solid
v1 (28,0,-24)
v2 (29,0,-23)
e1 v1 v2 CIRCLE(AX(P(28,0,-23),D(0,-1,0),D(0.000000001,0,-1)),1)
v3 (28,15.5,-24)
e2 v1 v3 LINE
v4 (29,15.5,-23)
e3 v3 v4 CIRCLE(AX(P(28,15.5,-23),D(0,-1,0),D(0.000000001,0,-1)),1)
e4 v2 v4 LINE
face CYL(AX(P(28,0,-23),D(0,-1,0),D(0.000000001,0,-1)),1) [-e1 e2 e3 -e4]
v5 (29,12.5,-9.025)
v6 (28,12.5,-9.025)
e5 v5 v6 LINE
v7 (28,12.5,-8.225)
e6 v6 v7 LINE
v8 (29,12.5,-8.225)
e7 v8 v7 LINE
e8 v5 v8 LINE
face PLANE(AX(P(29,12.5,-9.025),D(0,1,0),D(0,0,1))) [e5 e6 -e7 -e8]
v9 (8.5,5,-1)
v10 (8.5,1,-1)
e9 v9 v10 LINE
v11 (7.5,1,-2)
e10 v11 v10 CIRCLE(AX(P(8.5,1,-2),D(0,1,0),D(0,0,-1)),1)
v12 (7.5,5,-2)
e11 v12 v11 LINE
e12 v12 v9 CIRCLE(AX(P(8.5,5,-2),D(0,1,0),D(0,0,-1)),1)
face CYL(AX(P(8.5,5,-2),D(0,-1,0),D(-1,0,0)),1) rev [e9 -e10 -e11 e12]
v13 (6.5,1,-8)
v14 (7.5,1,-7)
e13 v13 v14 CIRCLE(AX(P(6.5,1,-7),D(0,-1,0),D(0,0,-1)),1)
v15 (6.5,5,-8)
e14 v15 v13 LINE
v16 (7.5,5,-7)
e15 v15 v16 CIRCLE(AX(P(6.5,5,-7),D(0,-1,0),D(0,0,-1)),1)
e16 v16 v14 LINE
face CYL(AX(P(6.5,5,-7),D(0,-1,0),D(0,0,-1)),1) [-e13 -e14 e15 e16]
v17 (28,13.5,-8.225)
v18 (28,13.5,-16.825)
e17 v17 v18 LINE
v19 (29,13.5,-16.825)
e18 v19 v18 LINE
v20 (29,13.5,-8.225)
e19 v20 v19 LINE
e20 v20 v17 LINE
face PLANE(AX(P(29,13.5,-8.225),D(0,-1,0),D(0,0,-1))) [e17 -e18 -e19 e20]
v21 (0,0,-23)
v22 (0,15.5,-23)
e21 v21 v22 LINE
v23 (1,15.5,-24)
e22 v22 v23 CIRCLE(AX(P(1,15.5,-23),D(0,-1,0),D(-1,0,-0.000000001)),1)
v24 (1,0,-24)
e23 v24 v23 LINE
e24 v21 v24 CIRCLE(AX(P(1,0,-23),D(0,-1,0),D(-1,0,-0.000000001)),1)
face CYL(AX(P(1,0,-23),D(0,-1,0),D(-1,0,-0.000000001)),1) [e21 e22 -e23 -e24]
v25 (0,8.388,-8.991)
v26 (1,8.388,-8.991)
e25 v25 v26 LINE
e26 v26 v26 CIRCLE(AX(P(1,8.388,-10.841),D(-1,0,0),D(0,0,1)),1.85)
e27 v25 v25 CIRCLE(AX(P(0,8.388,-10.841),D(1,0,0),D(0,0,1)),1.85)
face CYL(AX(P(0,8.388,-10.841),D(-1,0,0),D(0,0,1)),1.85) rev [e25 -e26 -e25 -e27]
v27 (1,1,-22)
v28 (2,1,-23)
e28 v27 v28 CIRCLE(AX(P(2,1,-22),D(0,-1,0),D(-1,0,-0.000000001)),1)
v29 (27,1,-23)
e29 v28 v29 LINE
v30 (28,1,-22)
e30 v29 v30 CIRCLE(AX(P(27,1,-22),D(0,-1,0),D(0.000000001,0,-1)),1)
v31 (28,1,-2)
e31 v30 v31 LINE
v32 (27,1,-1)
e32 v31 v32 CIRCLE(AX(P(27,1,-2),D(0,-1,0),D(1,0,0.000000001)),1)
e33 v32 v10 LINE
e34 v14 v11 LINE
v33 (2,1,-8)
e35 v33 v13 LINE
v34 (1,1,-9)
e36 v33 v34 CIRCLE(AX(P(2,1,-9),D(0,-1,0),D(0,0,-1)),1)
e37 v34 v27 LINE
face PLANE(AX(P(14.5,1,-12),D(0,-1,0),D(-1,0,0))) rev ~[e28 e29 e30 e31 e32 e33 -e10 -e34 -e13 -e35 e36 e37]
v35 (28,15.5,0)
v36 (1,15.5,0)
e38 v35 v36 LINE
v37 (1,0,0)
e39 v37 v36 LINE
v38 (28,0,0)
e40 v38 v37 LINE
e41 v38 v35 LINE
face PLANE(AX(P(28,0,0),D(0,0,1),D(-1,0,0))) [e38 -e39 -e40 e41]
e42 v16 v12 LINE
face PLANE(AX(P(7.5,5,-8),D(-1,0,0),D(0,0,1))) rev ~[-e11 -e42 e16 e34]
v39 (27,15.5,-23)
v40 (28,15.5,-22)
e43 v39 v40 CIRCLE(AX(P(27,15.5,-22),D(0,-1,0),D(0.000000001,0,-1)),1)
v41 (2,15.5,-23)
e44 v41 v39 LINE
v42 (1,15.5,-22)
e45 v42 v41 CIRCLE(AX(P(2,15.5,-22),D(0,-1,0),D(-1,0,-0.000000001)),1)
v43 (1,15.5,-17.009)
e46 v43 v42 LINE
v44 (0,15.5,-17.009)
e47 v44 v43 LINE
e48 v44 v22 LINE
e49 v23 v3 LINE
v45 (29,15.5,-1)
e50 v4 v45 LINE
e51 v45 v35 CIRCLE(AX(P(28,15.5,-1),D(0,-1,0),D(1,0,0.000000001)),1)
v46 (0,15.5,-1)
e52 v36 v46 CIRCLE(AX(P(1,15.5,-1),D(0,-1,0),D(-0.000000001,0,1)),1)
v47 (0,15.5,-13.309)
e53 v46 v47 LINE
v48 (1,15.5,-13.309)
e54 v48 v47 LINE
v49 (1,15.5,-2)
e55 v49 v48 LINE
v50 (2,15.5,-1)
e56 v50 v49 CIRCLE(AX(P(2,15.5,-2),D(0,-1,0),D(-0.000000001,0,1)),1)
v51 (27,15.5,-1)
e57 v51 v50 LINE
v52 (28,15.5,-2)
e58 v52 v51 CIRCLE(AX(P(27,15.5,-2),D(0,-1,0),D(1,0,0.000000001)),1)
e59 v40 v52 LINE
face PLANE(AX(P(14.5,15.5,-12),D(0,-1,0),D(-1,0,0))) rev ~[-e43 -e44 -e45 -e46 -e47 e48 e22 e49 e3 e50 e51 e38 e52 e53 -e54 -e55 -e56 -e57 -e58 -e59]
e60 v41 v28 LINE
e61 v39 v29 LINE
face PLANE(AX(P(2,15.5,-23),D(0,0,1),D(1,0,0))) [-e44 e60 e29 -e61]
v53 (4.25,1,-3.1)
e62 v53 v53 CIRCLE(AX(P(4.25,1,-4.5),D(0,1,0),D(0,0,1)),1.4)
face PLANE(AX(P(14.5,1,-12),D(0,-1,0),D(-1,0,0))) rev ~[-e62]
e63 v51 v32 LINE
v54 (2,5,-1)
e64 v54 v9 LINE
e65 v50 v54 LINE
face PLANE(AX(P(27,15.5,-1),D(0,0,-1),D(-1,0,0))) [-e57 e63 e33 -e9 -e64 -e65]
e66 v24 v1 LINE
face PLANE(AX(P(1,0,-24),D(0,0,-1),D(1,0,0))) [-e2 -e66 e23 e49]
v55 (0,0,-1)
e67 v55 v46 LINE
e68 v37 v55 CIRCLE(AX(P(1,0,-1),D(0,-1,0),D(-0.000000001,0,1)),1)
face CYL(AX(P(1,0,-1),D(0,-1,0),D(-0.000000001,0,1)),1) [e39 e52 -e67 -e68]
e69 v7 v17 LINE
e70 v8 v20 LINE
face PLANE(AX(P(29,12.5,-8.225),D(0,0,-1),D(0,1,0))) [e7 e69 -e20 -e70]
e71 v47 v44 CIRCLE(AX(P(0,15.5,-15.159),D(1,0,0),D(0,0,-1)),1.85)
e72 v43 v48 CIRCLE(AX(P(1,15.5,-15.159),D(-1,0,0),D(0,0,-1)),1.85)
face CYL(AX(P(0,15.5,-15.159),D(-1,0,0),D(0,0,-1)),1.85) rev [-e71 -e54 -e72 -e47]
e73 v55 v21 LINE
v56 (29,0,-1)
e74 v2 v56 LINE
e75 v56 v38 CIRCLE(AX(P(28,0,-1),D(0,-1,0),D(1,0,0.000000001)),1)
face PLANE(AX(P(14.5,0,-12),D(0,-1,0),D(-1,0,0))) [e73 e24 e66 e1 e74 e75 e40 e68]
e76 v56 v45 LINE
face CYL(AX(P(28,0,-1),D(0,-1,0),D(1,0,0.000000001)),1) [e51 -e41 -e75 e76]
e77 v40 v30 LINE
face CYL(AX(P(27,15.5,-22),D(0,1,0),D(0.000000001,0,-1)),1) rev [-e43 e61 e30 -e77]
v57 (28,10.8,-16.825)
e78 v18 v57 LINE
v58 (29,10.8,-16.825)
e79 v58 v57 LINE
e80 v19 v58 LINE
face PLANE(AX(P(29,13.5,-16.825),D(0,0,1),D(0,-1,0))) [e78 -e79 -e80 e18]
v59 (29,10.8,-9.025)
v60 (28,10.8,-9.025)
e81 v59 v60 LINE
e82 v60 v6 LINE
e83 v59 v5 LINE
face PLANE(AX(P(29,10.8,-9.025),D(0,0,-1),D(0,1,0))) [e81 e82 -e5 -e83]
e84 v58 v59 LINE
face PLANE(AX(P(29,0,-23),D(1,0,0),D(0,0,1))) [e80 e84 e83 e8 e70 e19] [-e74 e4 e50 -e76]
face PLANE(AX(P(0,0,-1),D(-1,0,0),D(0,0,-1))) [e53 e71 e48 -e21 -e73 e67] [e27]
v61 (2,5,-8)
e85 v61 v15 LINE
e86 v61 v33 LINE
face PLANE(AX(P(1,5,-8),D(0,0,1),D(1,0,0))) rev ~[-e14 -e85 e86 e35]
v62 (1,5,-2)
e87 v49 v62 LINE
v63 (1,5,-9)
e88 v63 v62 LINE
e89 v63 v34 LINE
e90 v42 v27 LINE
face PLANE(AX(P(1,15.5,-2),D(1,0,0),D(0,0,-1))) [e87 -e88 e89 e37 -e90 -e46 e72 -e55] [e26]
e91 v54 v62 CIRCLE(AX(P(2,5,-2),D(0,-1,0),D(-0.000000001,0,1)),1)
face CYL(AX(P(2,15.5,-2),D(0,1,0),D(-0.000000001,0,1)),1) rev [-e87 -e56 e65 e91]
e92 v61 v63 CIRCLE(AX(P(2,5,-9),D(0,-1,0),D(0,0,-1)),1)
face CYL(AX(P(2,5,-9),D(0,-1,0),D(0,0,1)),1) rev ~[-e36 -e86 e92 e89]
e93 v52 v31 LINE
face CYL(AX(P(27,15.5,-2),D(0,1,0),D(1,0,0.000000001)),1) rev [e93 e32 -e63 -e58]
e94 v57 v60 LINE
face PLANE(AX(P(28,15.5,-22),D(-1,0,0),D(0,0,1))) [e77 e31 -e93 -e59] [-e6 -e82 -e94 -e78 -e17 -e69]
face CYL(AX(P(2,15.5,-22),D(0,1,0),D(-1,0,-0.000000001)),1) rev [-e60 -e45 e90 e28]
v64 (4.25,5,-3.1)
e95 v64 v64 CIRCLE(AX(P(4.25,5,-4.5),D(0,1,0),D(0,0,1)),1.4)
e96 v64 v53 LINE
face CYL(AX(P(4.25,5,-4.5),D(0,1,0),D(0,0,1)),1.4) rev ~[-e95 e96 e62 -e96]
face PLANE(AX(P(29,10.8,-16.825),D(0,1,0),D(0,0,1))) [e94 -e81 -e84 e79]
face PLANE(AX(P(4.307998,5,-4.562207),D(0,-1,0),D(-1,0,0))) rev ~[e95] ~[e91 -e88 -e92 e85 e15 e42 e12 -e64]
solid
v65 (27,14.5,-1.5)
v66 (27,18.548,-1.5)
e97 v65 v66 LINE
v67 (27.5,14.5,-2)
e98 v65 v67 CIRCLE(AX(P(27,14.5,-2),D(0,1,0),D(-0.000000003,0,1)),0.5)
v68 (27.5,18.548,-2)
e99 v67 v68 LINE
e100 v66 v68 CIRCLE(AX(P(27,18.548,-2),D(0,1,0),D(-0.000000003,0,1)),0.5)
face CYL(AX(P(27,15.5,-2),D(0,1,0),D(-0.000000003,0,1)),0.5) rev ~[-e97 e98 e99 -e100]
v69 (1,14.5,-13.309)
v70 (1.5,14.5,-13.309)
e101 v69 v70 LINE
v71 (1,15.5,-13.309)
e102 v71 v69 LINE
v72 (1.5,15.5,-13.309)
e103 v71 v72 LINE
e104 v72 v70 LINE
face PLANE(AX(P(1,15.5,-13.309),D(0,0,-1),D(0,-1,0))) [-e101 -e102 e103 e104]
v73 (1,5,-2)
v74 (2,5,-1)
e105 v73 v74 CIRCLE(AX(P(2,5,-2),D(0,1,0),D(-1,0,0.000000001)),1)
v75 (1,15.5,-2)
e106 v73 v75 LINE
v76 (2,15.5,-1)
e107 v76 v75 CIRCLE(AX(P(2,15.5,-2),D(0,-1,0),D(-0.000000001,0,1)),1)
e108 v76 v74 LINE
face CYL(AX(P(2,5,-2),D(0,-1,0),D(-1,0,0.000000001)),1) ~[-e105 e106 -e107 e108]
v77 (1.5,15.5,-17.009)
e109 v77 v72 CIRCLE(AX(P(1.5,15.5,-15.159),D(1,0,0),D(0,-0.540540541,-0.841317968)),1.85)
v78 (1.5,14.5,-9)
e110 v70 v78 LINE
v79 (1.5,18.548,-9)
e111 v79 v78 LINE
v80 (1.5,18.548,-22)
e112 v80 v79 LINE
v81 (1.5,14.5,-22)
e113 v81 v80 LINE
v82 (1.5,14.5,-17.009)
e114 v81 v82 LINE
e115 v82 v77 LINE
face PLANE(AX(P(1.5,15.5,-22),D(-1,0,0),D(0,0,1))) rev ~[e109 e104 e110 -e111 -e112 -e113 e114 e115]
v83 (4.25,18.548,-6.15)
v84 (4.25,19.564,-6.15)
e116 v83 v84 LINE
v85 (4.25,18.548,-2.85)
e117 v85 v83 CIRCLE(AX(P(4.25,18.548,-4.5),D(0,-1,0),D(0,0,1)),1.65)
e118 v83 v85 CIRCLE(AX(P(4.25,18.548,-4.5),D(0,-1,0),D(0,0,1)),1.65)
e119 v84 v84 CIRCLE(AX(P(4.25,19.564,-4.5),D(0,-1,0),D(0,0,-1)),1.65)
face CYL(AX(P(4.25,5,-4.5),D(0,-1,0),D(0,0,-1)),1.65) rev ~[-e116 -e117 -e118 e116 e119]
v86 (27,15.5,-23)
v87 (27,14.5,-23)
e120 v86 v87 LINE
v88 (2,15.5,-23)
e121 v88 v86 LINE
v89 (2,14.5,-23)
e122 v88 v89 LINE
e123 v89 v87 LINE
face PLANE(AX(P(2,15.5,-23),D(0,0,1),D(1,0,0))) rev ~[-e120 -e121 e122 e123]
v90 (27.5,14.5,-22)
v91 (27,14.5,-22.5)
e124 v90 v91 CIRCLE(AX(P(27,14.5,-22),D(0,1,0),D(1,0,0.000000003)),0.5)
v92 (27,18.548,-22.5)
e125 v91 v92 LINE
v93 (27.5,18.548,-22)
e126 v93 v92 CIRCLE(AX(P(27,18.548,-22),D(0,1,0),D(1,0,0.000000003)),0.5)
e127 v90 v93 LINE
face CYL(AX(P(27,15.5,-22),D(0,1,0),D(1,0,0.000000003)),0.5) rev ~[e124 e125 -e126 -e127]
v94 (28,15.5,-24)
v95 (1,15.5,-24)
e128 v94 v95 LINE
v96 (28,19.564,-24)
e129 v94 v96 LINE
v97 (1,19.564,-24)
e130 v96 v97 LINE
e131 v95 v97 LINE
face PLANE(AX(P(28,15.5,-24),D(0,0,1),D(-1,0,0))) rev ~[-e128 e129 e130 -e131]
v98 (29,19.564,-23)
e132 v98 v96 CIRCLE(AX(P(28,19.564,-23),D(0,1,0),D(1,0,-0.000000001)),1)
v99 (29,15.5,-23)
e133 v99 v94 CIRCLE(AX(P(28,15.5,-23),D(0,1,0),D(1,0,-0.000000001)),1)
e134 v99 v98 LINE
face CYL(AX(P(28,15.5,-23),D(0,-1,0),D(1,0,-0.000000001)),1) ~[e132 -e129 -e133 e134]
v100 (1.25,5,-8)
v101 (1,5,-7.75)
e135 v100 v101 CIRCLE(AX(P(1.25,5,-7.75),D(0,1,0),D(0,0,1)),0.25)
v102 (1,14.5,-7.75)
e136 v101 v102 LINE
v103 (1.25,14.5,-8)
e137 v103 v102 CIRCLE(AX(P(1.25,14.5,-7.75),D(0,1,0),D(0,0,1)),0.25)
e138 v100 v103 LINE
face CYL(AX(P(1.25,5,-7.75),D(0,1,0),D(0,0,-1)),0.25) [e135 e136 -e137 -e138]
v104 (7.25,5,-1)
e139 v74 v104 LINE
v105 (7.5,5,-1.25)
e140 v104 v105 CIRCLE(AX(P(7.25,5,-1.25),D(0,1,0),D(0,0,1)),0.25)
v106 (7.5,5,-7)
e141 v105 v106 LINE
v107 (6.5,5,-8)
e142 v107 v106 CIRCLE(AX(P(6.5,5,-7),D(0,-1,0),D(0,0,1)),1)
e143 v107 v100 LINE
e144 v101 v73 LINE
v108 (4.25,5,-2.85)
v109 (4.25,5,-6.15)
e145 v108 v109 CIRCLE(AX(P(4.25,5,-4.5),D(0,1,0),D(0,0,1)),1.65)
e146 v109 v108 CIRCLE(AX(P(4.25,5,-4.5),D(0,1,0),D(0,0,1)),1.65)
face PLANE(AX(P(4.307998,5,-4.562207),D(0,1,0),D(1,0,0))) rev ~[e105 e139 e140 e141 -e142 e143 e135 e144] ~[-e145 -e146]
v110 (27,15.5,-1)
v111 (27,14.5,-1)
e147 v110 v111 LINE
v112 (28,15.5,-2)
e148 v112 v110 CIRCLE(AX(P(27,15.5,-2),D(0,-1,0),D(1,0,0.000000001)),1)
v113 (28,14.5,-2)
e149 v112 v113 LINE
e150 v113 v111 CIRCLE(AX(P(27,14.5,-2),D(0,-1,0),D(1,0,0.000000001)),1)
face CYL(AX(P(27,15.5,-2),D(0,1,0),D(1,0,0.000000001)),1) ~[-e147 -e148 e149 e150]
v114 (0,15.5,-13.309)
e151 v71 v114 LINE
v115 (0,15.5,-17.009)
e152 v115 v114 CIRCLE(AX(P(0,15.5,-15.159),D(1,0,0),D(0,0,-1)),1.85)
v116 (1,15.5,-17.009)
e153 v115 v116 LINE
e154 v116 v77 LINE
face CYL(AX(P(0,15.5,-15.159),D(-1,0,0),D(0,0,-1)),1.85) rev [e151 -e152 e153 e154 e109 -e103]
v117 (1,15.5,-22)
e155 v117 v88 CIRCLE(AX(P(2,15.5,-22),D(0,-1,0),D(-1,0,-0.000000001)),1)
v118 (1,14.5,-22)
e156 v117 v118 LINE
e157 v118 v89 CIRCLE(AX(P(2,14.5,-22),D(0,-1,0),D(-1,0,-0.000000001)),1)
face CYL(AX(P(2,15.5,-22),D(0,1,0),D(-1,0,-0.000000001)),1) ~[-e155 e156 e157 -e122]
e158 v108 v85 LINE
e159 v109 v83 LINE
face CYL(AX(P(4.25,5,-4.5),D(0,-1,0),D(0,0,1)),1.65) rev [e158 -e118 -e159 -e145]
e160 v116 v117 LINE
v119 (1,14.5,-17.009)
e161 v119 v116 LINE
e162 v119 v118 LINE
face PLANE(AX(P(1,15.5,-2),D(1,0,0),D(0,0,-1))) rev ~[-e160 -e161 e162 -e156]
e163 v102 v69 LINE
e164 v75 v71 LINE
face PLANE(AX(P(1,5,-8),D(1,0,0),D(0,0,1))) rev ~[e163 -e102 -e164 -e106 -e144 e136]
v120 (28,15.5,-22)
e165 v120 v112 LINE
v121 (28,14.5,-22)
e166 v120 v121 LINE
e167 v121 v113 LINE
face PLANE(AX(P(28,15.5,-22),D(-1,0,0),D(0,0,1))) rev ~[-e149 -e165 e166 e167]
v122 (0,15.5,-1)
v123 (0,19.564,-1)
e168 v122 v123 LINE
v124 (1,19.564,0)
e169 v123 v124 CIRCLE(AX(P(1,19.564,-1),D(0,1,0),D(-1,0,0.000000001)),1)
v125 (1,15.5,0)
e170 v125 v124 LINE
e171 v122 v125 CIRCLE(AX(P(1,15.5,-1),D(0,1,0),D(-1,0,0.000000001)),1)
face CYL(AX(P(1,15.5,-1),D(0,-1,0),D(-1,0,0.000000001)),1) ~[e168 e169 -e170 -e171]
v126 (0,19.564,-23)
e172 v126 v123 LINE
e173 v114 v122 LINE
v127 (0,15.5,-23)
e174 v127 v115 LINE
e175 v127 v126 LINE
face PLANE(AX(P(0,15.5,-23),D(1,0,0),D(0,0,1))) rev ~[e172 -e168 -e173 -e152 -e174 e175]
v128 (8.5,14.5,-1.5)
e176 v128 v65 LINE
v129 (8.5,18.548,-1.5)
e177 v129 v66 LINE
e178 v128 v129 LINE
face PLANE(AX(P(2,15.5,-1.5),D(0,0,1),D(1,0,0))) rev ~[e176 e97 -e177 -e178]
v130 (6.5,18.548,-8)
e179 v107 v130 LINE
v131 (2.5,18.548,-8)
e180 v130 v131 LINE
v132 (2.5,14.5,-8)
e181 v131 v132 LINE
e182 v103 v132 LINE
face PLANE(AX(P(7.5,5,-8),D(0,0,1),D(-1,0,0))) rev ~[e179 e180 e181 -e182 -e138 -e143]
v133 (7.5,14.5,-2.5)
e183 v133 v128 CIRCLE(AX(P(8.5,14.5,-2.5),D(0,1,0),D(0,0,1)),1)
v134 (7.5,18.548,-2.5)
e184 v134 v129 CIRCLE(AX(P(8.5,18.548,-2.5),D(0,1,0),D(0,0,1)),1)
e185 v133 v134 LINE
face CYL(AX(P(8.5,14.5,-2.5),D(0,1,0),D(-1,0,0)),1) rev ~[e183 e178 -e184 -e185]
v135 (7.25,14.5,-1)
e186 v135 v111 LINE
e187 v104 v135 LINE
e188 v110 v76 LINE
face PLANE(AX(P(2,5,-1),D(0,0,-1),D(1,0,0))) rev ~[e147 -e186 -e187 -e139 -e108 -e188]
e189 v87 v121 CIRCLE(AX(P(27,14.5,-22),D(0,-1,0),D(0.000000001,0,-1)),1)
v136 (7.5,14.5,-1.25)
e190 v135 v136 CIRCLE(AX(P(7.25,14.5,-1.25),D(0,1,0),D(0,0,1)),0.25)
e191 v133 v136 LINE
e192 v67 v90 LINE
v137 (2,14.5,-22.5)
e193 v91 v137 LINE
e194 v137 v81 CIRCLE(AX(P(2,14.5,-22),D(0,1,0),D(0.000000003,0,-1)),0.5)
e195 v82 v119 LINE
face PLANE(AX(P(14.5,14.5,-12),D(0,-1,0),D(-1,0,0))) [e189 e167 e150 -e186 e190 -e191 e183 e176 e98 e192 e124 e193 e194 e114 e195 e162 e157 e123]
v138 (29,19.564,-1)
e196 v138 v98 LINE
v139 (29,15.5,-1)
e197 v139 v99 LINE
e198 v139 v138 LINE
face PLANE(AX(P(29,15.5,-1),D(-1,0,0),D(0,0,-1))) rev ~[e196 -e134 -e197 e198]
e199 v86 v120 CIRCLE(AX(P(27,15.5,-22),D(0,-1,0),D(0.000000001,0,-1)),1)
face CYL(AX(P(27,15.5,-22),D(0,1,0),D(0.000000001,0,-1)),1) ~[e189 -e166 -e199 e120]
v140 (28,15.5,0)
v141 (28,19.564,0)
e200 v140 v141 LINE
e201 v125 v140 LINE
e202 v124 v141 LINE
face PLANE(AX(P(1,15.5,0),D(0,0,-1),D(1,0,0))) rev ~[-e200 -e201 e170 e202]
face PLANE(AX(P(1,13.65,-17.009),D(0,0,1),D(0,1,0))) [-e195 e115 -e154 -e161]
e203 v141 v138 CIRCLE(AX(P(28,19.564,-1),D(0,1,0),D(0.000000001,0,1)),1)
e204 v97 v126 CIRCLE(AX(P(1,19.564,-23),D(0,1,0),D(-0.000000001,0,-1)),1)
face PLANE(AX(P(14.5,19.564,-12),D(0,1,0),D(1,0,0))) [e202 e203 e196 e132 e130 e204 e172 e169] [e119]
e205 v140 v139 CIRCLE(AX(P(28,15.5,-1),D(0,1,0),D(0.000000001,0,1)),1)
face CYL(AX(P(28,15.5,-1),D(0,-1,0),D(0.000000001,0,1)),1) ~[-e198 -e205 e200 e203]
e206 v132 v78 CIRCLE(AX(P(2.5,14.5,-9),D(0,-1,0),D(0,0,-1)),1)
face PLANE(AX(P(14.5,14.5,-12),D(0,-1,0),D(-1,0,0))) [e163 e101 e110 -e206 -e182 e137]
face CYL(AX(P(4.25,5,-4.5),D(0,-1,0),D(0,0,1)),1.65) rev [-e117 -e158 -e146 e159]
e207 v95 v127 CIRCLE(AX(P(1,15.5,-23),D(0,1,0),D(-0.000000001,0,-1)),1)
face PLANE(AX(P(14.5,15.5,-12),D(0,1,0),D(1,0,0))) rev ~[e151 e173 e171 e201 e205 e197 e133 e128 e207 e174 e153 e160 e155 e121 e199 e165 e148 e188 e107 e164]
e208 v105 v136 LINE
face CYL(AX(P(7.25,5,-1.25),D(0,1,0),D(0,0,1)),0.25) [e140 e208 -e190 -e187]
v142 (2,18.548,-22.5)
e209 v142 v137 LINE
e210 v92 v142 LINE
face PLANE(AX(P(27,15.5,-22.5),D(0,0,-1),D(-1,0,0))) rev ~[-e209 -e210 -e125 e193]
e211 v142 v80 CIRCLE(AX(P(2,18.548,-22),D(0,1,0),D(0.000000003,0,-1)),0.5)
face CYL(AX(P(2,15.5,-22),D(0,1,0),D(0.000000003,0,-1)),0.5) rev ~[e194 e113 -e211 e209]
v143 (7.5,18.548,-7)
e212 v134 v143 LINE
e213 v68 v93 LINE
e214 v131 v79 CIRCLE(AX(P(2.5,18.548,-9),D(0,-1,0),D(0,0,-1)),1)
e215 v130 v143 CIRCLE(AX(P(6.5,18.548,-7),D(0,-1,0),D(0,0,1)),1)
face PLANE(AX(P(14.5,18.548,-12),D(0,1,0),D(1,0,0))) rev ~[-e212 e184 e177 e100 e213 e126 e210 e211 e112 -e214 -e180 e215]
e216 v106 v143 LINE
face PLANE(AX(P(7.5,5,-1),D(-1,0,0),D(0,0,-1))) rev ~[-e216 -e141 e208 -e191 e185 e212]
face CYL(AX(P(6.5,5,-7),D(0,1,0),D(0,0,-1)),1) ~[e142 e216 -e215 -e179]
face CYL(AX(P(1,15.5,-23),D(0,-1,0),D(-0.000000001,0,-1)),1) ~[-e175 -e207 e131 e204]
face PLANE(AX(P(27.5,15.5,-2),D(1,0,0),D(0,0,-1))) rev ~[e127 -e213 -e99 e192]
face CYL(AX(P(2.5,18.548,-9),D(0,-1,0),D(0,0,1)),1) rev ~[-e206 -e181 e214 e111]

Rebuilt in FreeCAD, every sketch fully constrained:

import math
import FreeCAD as App
import Part
import Sketcher
Q = App.Units.Quantity


def edges_at(feature, points):
    """Names of the edges that pass closest to the given points."""
    edges = feature.Shape.Edges
    near = lambda p: min(range(len(edges)), key=lambda i: edges[i].distToShape(Part.Vertex(*p))[0])
    return sorted({f"Edge{near(p) + 1}" for p in points})


def add_polygon(sketch, points):
    """Adds a closed chain of lines whose ends are joined by coincident constraints."""
    first, n = sketch.GeometryCount, len(points)
    for a, b in zip(points, points[1:] + points[:1]):
        sketch.addGeometry(Part.LineSegment(App.Vector(*a, 0), App.Vector(*b, 0)), False)
    for i in range(n):
        sketch.addConstraint(Sketcher.Constraint("Coincident", first + i, 2, first + (i + 1) % n, 1))

doc = App.newDocument("Part")
params = doc.addObject("Spreadsheet::Sheet", "Params")
for row, (alias, value) in enumerate([
    ("sketch1_radius", "1 mm"),
    ("sketch1_width", "27 mm"),
    ("sketch1_height", "22 mm"),
    ("pad1_length", "15.5 mm"),
    ("sketch2_radius", "1 mm"),
    ("sketch2_width", "25 mm"),
    ("sketch2_height", "20 mm"),
    ("pocket1_length", "14.5 mm"),
    ("sketch3_width", "1 mm"),
    ("sketch3_width2", "1.7 mm"),
    ("sketch3_height", "8.6 mm"),
    ("sketch3_height2", "0.8 mm"),
    ("sketch4_radius", "1 mm"),
    ("sketch4_width", "27 mm"),
    ("sketch4_height", "22 mm"),
    ("pad2_length", "4.064 mm"),
    ("sketch5_radius", "0.5 mm"),
    ("sketch5_width", "25 mm"),
    ("sketch5_height", "20 mm"),
    ("pocket3_length", "3.048 mm"),
    ("sketch6_radius", "1 mm"),
    ("sketch6_radius2", "0.5 mm"),
    ("sketch6_width", "25 mm"),
    ("sketch6_height", "20 mm"),
    ("pad3_length", "1 mm"),
    ("sketch7_diameter", "3.7 mm"),
    ("pad4_length", "1.5 mm"),
    ("sketch8_radius", "1 mm"),
    ("sketch8_diameter", "2.8 mm"),
    ("sketch8_height", "6 mm"),
    ("sketch8_width", "6.5 mm"),
    ("pad5_length", "4 mm"),
    ("fillet_radius", "1 mm"),
    ("sketch9_radius", "1.85 mm"),
    ("pocket4_length", "0.5 mm"),
    ("sketch10_radius", "1 mm"),
    ("sketch10_diameter", "3.3 mm"),
    ("sketch10_height", "6 mm"),
    ("sketch10_width", "6.5 mm"),
    ("sketch11_diameter", "3.3 mm"),
    ("fillet2_radius", "1 mm"),
    ("fillet3_radius", "0.25 mm"),
], start=1):
    params.set(f"A{row}", alias)
    params.set(f"B{row}", "=" + value)
    params.setAlias(f"B{row}", alias)

body = doc.addObject("PartDesign::Body", "Body")

# Sketch on XZ plane
sketch1 = doc.addObject("Sketcher::SketchObject", "Sketch")
body.addObject(sketch1)
sketch1.AttachmentSupport = (doc.XZ_Plane, [""])
sketch1.MapMode = "FlatFace"
sketch1.addGeometry(Part.ArcOfCircle(Part.Circle(App.Vector(1, -1, 0), App.Vector(0, 0, 1), 1), math.radians(90), math.radians(180)), False)
sketch1.addGeometry(Part.LineSegment(App.Vector(1, 0, 0), App.Vector(28, 0, 0)), False)
sketch1.addGeometry(Part.ArcOfCircle(Part.Circle(App.Vector(28, -1, 0), App.Vector(0, 0, 1), 1), math.radians(0), math.radians(90)), False)
sketch1.addGeometry(Part.LineSegment(App.Vector(29, -1, 0), App.Vector(29, -23, 0)), False)
sketch1.addGeometry(Part.ArcOfCircle(Part.Circle(App.Vector(28, -23, 0), App.Vector(0, 0, 1), 1), math.radians(-90), math.radians(0)), False)
sketch1.addGeometry(Part.LineSegment(App.Vector(28, -24, 0), App.Vector(1, -24, 0)), False)
sketch1.addGeometry(Part.ArcOfCircle(Part.Circle(App.Vector(1, -23, 0), App.Vector(0, 0, 1), 1), math.radians(-180), math.radians(-90)), False)
sketch1.addGeometry(Part.LineSegment(App.Vector(0, -23, 0), App.Vector(0, -1, 0)), False)
sketch1.addConstraint(Sketcher.Constraint("Tangent", 0, 1, 1, 1))
sketch1.addConstraint(Sketcher.Constraint("Tangent", 1, 2, 2, 2))
sketch1.addConstraint(Sketcher.Constraint("Tangent", 2, 1, 3, 1))
sketch1.addConstraint(Sketcher.Constraint("Tangent", 3, 2, 4, 2))
sketch1.addConstraint(Sketcher.Constraint("Tangent", 4, 1, 5, 1))
sketch1.addConstraint(Sketcher.Constraint("Tangent", 5, 2, 6, 2))
sketch1.addConstraint(Sketcher.Constraint("Tangent", 6, 1, 7, 1))
sketch1.addConstraint(Sketcher.Constraint("Tangent", 7, 2, 0, 2))
sketch1.addConstraint(Sketcher.Constraint("Horizontal", 1))
sketch1.addConstraint(Sketcher.Constraint("Vertical", 3))
sketch1.addConstraint(Sketcher.Constraint("Horizontal", 5))
sketch1.addConstraint(Sketcher.Constraint("Vertical", 7))
sketch1.addConstraint(Sketcher.Constraint("Equal", 0, 2))
sketch1.addConstraint(Sketcher.Constraint("Equal", 2, 4))
sketch1.addConstraint(Sketcher.Constraint("Equal", 4, 6))
sketch1.addConstraint(Sketcher.Constraint("PointOnObject", 0, 1, -1))
sketch1.addConstraint(Sketcher.Constraint("PointOnObject", 6, 1, -2))
sketch1.addConstraint(Sketcher.Constraint("Radius", 0, Q("1 mm")))
sketch1.addConstraint(Sketcher.Constraint("DistanceX", 1, 1, 1, 2, Q("27 mm")))
sketch1.addConstraint(Sketcher.Constraint("DistanceY", 3, 2, 3, 1, Q("22 mm")))
sketch1.setExpression("Constraints[17]", "Params.sketch1_radius")
sketch1.setExpression("Constraints[18]", "Params.sketch1_width")
sketch1.setExpression("Constraints[19]", "Params.sketch1_height")
pad1 = doc.addObject("PartDesign::Pad", "Pad")
body.addObject(pad1)
pad1.Profile = sketch1
pad1.setExpression("Length", "Params.pad1_length")
pad1.Reversed = True

# Sketch on XZ plane
sketch2 = doc.addObject("Sketcher::SketchObject", "Sketch001")
body.addObject(sketch2)
sketch2.AttachmentSupport = (doc.XZ_Plane, [""])
sketch2.MapMode = "FlatFace"
sketch2.AttachmentOffset = App.Placement(App.Vector(0, 0, -15.5), App.Rotation())
sketch2.addGeometry(Part.LineSegment(App.Vector(1, -22, 0), App.Vector(1, -2, 0)), False)
sketch2.addGeometry(Part.ArcOfCircle(Part.Circle(App.Vector(2, -2, 0), App.Vector(0, 0, 1), 1), math.radians(90), math.radians(180)), False)
sketch2.addGeometry(Part.LineSegment(App.Vector(2, -1, 0), App.Vector(27, -1, 0)), False)
sketch2.addGeometry(Part.ArcOfCircle(Part.Circle(App.Vector(27, -2, 0), App.Vector(0, 0, 1), 1), math.radians(0), math.radians(90)), False)
sketch2.addGeometry(Part.LineSegment(App.Vector(28, -2, 0), App.Vector(28, -22, 0)), False)
sketch2.addGeometry(Part.ArcOfCircle(Part.Circle(App.Vector(27, -22, 0), App.Vector(0, 0, 1), 1), math.radians(-90), math.radians(0)), False)
sketch2.addGeometry(Part.LineSegment(App.Vector(27, -23, 0), App.Vector(2, -23, 0)), False)
sketch2.addGeometry(Part.ArcOfCircle(Part.Circle(App.Vector(2, -22, 0), App.Vector(0, 0, 1), 1), math.radians(-180), math.radians(-90)), False)
sketch2.addConstraint(Sketcher.Constraint("Tangent", 0, 2, 1, 2))
sketch2.addConstraint(Sketcher.Constraint("Tangent", 1, 1, 2, 1))
sketch2.addConstraint(Sketcher.Constraint("Tangent", 2, 2, 3, 2))
sketch2.addConstraint(Sketcher.Constraint("Tangent", 3, 1, 4, 1))
sketch2.addConstraint(Sketcher.Constraint("Tangent", 4, 2, 5, 2))
sketch2.addConstraint(Sketcher.Constraint("Tangent", 5, 1, 6, 1))
sketch2.addConstraint(Sketcher.Constraint("Tangent", 6, 2, 7, 2))
sketch2.addConstraint(Sketcher.Constraint("Tangent", 7, 1, 0, 1))
sketch2.addConstraint(Sketcher.Constraint("Vertical", 0))
sketch2.addConstraint(Sketcher.Constraint("Horizontal", 2))
sketch2.addConstraint(Sketcher.Constraint("Vertical", 4))
sketch2.addConstraint(Sketcher.Constraint("Horizontal", 6))
sketch2.addConstraint(Sketcher.Constraint("Equal", 1, 3))
sketch2.addConstraint(Sketcher.Constraint("Equal", 3, 5))
sketch2.addConstraint(Sketcher.Constraint("Equal", 5, 7))
sketch2.addConstraint(Sketcher.Constraint("Radius", 1, Q("1 mm")))
sketch2.addConstraint(Sketcher.Constraint("DistanceX", 2, 1, 2, 2, Q("25 mm")))
sketch2.addConstraint(Sketcher.Constraint("DistanceY", 0, 1, 0, 2, Q("20 mm")))
sketch2.addConstraint(Sketcher.Constraint("DistanceX", -1, 1, 1, 3, Q("2 mm")))
sketch2.addConstraint(Sketcher.Constraint("DistanceY", 1, 3, -1, 1, Q("2 mm")))
sketch2.setExpression("Constraints[15]", "Params.sketch2_radius")
sketch2.setExpression("Constraints[16]", "Params.sketch2_width")
sketch2.setExpression("Constraints[17]", "Params.sketch2_height")
pocket1 = doc.addObject("PartDesign::Pocket", "Pocket")
body.addObject(pocket1)
pocket1.Profile = sketch2
pocket1.setExpression("Length", "Params.pocket1_length")
pocket1.Reversed = True

# Sketch on YZ plane
sketch3 = doc.addObject("Sketcher::SketchObject", "Sketch002")
body.addObject(sketch3)
sketch3.AttachmentSupport = (doc.YZ_Plane, [""])
sketch3.MapMode = "FlatFace"
sketch3.AttachmentOffset = App.Placement(App.Vector(0, 0, 29), App.Rotation())
add_polygon(sketch3, [(13.5, -16.8), (13.5, -8.2), (12.5, -8.2), (12.5, -9), (10.8, -9), (10.8, -16.8)])  # lines 0-5
sketch3.addConstraint(Sketcher.Constraint("Vertical", 0))
sketch3.addConstraint(Sketcher.Constraint("Horizontal", 1))
sketch3.addConstraint(Sketcher.Constraint("Vertical", 2))
sketch3.addConstraint(Sketcher.Constraint("Horizontal", 3))
sketch3.addConstraint(Sketcher.Constraint("Vertical", 4))
sketch3.addConstraint(Sketcher.Constraint("Horizontal", 5))
sketch3.addConstraint(Sketcher.Constraint("DistanceX", 1, 2, 1, 1, Q("1 mm")))
sketch3.addConstraint(Sketcher.Constraint("DistanceX", 3, 2, 3, 1, Q("1.7 mm")))
sketch3.addConstraint(Sketcher.Constraint("DistanceY", 0, 1, 0, 2, Q("8.6 mm")))
sketch3.addConstraint(Sketcher.Constraint("DistanceY", 2, 2, 2, 1, Q("0.8 mm")))
sketch3.addConstraint(Sketcher.Constraint("DistanceX", -1, 1, 0, 2, Q("13.5 mm")))
sketch3.addConstraint(Sketcher.Constraint("DistanceY", 0, 2, -1, 1, Q("8.225 mm")))
sketch3.setExpression("Constraints[12]", "Params.sketch3_width")
sketch3.setExpression("Constraints[13]", "Params.sketch3_width2")
sketch3.setExpression("Constraints[14]", "Params.sketch3_height")
sketch3.setExpression("Constraints[15]", "Params.sketch3_height2")
pocket2 = doc.addObject("PartDesign::Pocket", "Pocket001")
body.addObject(pocket2)
pocket2.Profile = sketch3
pocket2.Type = "UpToFirst"
body2 = doc.addObject("PartDesign::Body", "Body001")

# Sketch on XZ plane
sketch4 = doc.addObject("Sketcher::SketchObject", "Sketch003")
body2.addObject(sketch4)
sketch4.AttachmentSupport = (doc.getObject("XZ_Plane001"), [""])
sketch4.MapMode = "FlatFace"
sketch4.AttachmentOffset = App.Placement(App.Vector(0, 0, -15.5), App.Rotation())
sketch4.addGeometry(Part.LineSegment(App.Vector(0, -23, 0), App.Vector(0, -1, 0)), False)
sketch4.addGeometry(Part.ArcOfCircle(Part.Circle(App.Vector(1, -1, 0), App.Vector(0, 0, 1), 1), math.radians(90), math.radians(180)), False)
sketch4.addGeometry(Part.LineSegment(App.Vector(1, 0, 0), App.Vector(28, 0, 0)), False)
sketch4.addGeometry(Part.ArcOfCircle(Part.Circle(App.Vector(28, -1, 0), App.Vector(0, 0, 1), 1), math.radians(0), math.radians(90)), False)
sketch4.addGeometry(Part.LineSegment(App.Vector(29, -1, 0), App.Vector(29, -23, 0)), False)
sketch4.addGeometry(Part.ArcOfCircle(Part.Circle(App.Vector(28, -23, 0), App.Vector(0, 0, 1), 1), math.radians(-90), math.radians(0)), False)
sketch4.addGeometry(Part.LineSegment(App.Vector(28, -24, 0), App.Vector(1, -24, 0)), False)
sketch4.addGeometry(Part.ArcOfCircle(Part.Circle(App.Vector(1, -23, 0), App.Vector(0, 0, 1), 1), math.radians(-180), math.radians(-90)), False)
sketch4.addConstraint(Sketcher.Constraint("Tangent", 0, 2, 1, 2))
sketch4.addConstraint(Sketcher.Constraint("Tangent", 1, 1, 2, 1))
sketch4.addConstraint(Sketcher.Constraint("Tangent", 2, 2, 3, 2))
sketch4.addConstraint(Sketcher.Constraint("Tangent", 3, 1, 4, 1))
sketch4.addConstraint(Sketcher.Constraint("Tangent", 4, 2, 5, 2))
sketch4.addConstraint(Sketcher.Constraint("Tangent", 5, 1, 6, 1))
sketch4.addConstraint(Sketcher.Constraint("Tangent", 6, 2, 7, 2))
sketch4.addConstraint(Sketcher.Constraint("Tangent", 7, 1, 0, 1))
sketch4.addConstraint(Sketcher.Constraint("Vertical", 0))
sketch4.addConstraint(Sketcher.Constraint("Horizontal", 2))
sketch4.addConstraint(Sketcher.Constraint("Vertical", 4))
sketch4.addConstraint(Sketcher.Constraint("Horizontal", 6))
sketch4.addConstraint(Sketcher.Constraint("Equal", 1, 3))
sketch4.addConstraint(Sketcher.Constraint("Equal", 3, 5))
sketch4.addConstraint(Sketcher.Constraint("Equal", 5, 7))
sketch4.addConstraint(Sketcher.Constraint("PointOnObject", 0, 2, -2))
sketch4.addConstraint(Sketcher.Constraint("PointOnObject", 1, 1, -1))
sketch4.addConstraint(Sketcher.Constraint("Radius", 1, Q("1 mm")))
sketch4.addConstraint(Sketcher.Constraint("DistanceX", 2, 1, 2, 2, Q("27 mm")))
sketch4.addConstraint(Sketcher.Constraint("DistanceY", 0, 1, 0, 2, Q("22 mm")))
sketch4.setExpression("Constraints[17]", "Params.sketch4_radius")
sketch4.setExpression("Constraints[18]", "Params.sketch4_width")
sketch4.setExpression("Constraints[19]", "Params.sketch4_height")
pad2 = doc.addObject("PartDesign::Pad", "Pad001")
body2.addObject(pad2)
pad2.Profile = sketch4
pad2.setExpression("Length", "Params.pad2_length")
pad2.Reversed = True

# Sketch on XZ plane
sketch5 = doc.addObject("Sketcher::SketchObject", "Sketch004")
body2.addObject(sketch5)
sketch5.AttachmentSupport = (doc.getObject("XZ_Plane001"), [""])
sketch5.MapMode = "FlatFace"
sketch5.AttachmentOffset = App.Placement(App.Vector(0, 0, -15.5), App.Rotation())
sketch5.addGeometry(Part.LineSegment(App.Vector(27, -22.5, 0), App.Vector(2, -22.5, 0)), False)
sketch5.addGeometry(Part.ArcOfCircle(Part.Circle(App.Vector(2, -22, 0), App.Vector(0, 0, 1), 0.5), math.radians(180), math.radians(270)), False)
sketch5.addGeometry(Part.LineSegment(App.Vector(1.5, -22, 0), App.Vector(1.5, -2, 0)), False)
sketch5.addGeometry(Part.ArcOfCircle(Part.Circle(App.Vector(2, -2, 0), App.Vector(0, 0, 1), 0.5), math.radians(90), math.radians(180)), False)
sketch5.addGeometry(Part.LineSegment(App.Vector(2, -1.5, 0), App.Vector(27, -1.5, 0)), False)
sketch5.addGeometry(Part.ArcOfCircle(Part.Circle(App.Vector(27, -2, 0), App.Vector(0, 0, 1), 0.5), math.radians(0), math.radians(90)), False)
sketch5.addGeometry(Part.LineSegment(App.Vector(27.5, -2, 0), App.Vector(27.5, -22, 0)), False)
sketch5.addGeometry(Part.ArcOfCircle(Part.Circle(App.Vector(27, -22, 0), App.Vector(0, 0, 1), 0.5), math.radians(-90), math.radians(0)), False)
sketch5.addConstraint(Sketcher.Constraint("Tangent", 0, 2, 1, 2))
sketch5.addConstraint(Sketcher.Constraint("Tangent", 1, 1, 2, 1))
sketch5.addConstraint(Sketcher.Constraint("Tangent", 2, 2, 3, 2))
sketch5.addConstraint(Sketcher.Constraint("Tangent", 3, 1, 4, 1))
sketch5.addConstraint(Sketcher.Constraint("Tangent", 4, 2, 5, 2))
sketch5.addConstraint(Sketcher.Constraint("Tangent", 5, 1, 6, 1))
sketch5.addConstraint(Sketcher.Constraint("Tangent", 6, 2, 7, 2))
sketch5.addConstraint(Sketcher.Constraint("Tangent", 7, 1, 0, 1))
sketch5.addConstraint(Sketcher.Constraint("Horizontal", 0))
sketch5.addConstraint(Sketcher.Constraint("Vertical", 2))
sketch5.addConstraint(Sketcher.Constraint("Horizontal", 4))
sketch5.addConstraint(Sketcher.Constraint("Vertical", 6))
sketch5.addConstraint(Sketcher.Constraint("Equal", 1, 3))
sketch5.addConstraint(Sketcher.Constraint("Equal", 3, 5))
sketch5.addConstraint(Sketcher.Constraint("Equal", 5, 7))
sketch5.addConstraint(Sketcher.Constraint("Radius", 1, Q("0.5 mm")))
sketch5.addConstraint(Sketcher.Constraint("DistanceX", 0, 2, 0, 1, Q("25 mm")))
sketch5.addConstraint(Sketcher.Constraint("DistanceY", 2, 1, 2, 2, Q("20 mm")))
sketch5.addConstraint(Sketcher.Constraint("DistanceX", -1, 1, 1, 3, Q("2 mm")))
sketch5.addConstraint(Sketcher.Constraint("DistanceY", 1, 3, -1, 1, Q("22 mm")))
sketch5.setExpression("Constraints[15]", "Params.sketch5_radius")
sketch5.setExpression("Constraints[16]", "Params.sketch5_width")
sketch5.setExpression("Constraints[17]", "Params.sketch5_height")
pocket3 = doc.addObject("PartDesign::Pocket", "Pocket002")
body2.addObject(pocket3)
pocket3.Profile = sketch5
pocket3.setExpression("Length", "Params.pocket3_length")

# Sketch on XZ plane
sketch6 = doc.addObject("Sketcher::SketchObject", "Sketch005")
body2.addObject(sketch6)
sketch6.AttachmentSupport = (doc.getObject("XZ_Plane001"), [""])
sketch6.MapMode = "FlatFace"
sketch6.AttachmentOffset = App.Placement(App.Vector(0, 0, -15.5), App.Rotation())
sketch6.addGeometry(Part.ArcOfCircle(Part.Circle(App.Vector(2, -2, 0), App.Vector(0, 0, 1), 1), math.radians(90), math.radians(180)), False)
sketch6.addGeometry(Part.LineSegment(App.Vector(2, -1, 0), App.Vector(27, -1, 0)), False)
sketch6.addGeometry(Part.ArcOfCircle(Part.Circle(App.Vector(27, -2, 0), App.Vector(0, 0, 1), 1), math.radians(0), math.radians(90)), False)
sketch6.addGeometry(Part.LineSegment(App.Vector(28, -2, 0), App.Vector(28, -22, 0)), False)
sketch6.addGeometry(Part.ArcOfCircle(Part.Circle(App.Vector(27, -22, 0), App.Vector(0, 0, 1), 1), math.radians(-90), math.radians(0)), False)
sketch6.addGeometry(Part.LineSegment(App.Vector(27, -23, 0), App.Vector(2, -23, 0)), False)
sketch6.addGeometry(Part.ArcOfCircle(Part.Circle(App.Vector(2, -22, 0), App.Vector(0, 0, 1), 1), math.radians(-180), math.radians(-90)), False)
sketch6.addGeometry(Part.LineSegment(App.Vector(1, -22, 0), App.Vector(1, -2, 0)), False)
sketch6.addGeometry(Part.LineSegment(App.Vector(2, -22.5, 0), App.Vector(27, -22.5, 0)), False)
sketch6.addGeometry(Part.ArcOfCircle(Part.Circle(App.Vector(27, -22, 0), App.Vector(0, 0, 1), 0.5), math.radians(-90), math.radians(0)), False)
sketch6.addGeometry(Part.LineSegment(App.Vector(27.5, -22, 0), App.Vector(27.5, -2, 0)), False)
sketch6.addGeometry(Part.ArcOfCircle(Part.Circle(App.Vector(27, -2, 0), App.Vector(0, 0, 1), 0.5), math.radians(0), math.radians(90)), False)
sketch6.addGeometry(Part.LineSegment(App.Vector(27, -1.5, 0), App.Vector(2, -1.5, 0)), False)
sketch6.addGeometry(Part.ArcOfCircle(Part.Circle(App.Vector(2, -2, 0), App.Vector(0, 0, 1), 0.5), math.radians(90), math.radians(180)), False)
sketch6.addGeometry(Part.LineSegment(App.Vector(1.5, -2, 0), App.Vector(1.5, -22, 0)), False)
sketch6.addGeometry(Part.ArcOfCircle(Part.Circle(App.Vector(2, -22, 0), App.Vector(0, 0, 1), 0.5), math.radians(180), math.radians(270)), False)
sketch6.addConstraint(Sketcher.Constraint("Tangent", 0, 1, 1, 1))
sketch6.addConstraint(Sketcher.Constraint("Tangent", 1, 2, 2, 2))
sketch6.addConstraint(Sketcher.Constraint("Tangent", 2, 1, 3, 1))
sketch6.addConstraint(Sketcher.Constraint("Tangent", 3, 2, 4, 2))
sketch6.addConstraint(Sketcher.Constraint("Tangent", 4, 1, 5, 1))
sketch6.addConstraint(Sketcher.Constraint("Tangent", 5, 2, 6, 2))
sketch6.addConstraint(Sketcher.Constraint("Tangent", 6, 1, 7, 1))
sketch6.addConstraint(Sketcher.Constraint("Tangent", 7, 2, 0, 2))
sketch6.addConstraint(Sketcher.Constraint("Tangent", 8, 2, 9, 1))
sketch6.addConstraint(Sketcher.Constraint("Tangent", 9, 2, 10, 1))
sketch6.addConstraint(Sketcher.Constraint("Tangent", 10, 2, 11, 1))
sketch6.addConstraint(Sketcher.Constraint("Tangent", 11, 2, 12, 1))
sketch6.addConstraint(Sketcher.Constraint("Tangent", 12, 2, 13, 1))
sketch6.addConstraint(Sketcher.Constraint("Tangent", 13, 2, 14, 1))
sketch6.addConstraint(Sketcher.Constraint("Tangent", 14, 2, 15, 1))
sketch6.addConstraint(Sketcher.Constraint("Tangent", 15, 2, 8, 1))
sketch6.addConstraint(Sketcher.Constraint("Horizontal", 1))
sketch6.addConstraint(Sketcher.Constraint("Vertical", 3))
sketch6.addConstraint(Sketcher.Constraint("Horizontal", 5))
sketch6.addConstraint(Sketcher.Constraint("Vertical", 7))
sketch6.addConstraint(Sketcher.Constraint("Horizontal", 8))
sketch6.addConstraint(Sketcher.Constraint("Vertical", 10))
sketch6.addConstraint(Sketcher.Constraint("Horizontal", 12))
sketch6.addConstraint(Sketcher.Constraint("Vertical", 14))
sketch6.addConstraint(Sketcher.Constraint("Coincident", 9, 3, 4, 3))
sketch6.addConstraint(Sketcher.Constraint("Coincident", 11, 3, 2, 3))
sketch6.addConstraint(Sketcher.Constraint("Coincident", 13, 3, 0, 3))
sketch6.addConstraint(Sketcher.Constraint("Equal", 0, 2))
sketch6.addConstraint(Sketcher.Constraint("Equal", 2, 4))
sketch6.addConstraint(Sketcher.Constraint("Equal", 4, 6))
sketch6.addConstraint(Sketcher.Constraint("Equal", 13, 15))
sketch6.addConstraint(Sketcher.Constraint("Radius", 0, Q("1 mm")))
sketch6.addConstraint(Sketcher.Constraint("Radius", 9, Q("0.5 mm")))
sketch6.addConstraint(Sketcher.Constraint("DistanceX", 1, 1, 1, 2, Q("25 mm")))
sketch6.addConstraint(Sketcher.Constraint("DistanceY", 3, 2, 3, 1, Q("20 mm")))
sketch6.addConstraint(Sketcher.Constraint("DistanceX", -1, 1, 0, 3, Q("2 mm")))
sketch6.addConstraint(Sketcher.Constraint("DistanceY", 0, 3, -1, 1, Q("2 mm")))
sketch6.setExpression("Constraints[31]", "Params.sketch6_radius")
sketch6.setExpression("Constraints[32]", "Params.sketch6_radius2")
sketch6.setExpression("Constraints[33]", "Params.sketch6_width")
sketch6.setExpression("Constraints[34]", "Params.sketch6_height")
pad3 = doc.addObject("PartDesign::Pad", "Pad002")
body2.addObject(pad3)
pad3.Profile = sketch6
pad3.setExpression("Length", "Params.pad3_length")
body3 = doc.addObject("PartDesign::Body", "Body002")
body3.AllowCompound = True

# Sketch on YZ plane
sketch7 = doc.addObject("Sketcher::SketchObject", "Sketch006")
body3.addObject(sketch7)
sketch7.AttachmentSupport = (doc.getObject("YZ_Plane002"), [""])
sketch7.MapMode = "FlatFace"
sketch7.addGeometry(Part.Circle(App.Vector(15.5, -15.2, 0), App.Vector(0, 0, 1), 1.9), False)
sketch7.addGeometry(Part.Circle(App.Vector(8.4, -10.8, 0), App.Vector(0, 0, 1), 1.9), False)
sketch7.addConstraint(Sketcher.Constraint("Equal", 0, 1))
sketch7.addConstraint(Sketcher.Constraint("Diameter", 0, Q("3.7 mm")))
sketch7.addConstraint(Sketcher.Constraint("DistanceX", -1, 1, 0, 3, Q("15.5 mm")))
sketch7.addConstraint(Sketcher.Constraint("DistanceY", 0, 3, -1, 1, Q("15.159 mm")))
sketch7.addConstraint(Sketcher.Constraint("DistanceX", -1, 1, 1, 3, Q("8.388 mm")))
sketch7.addConstraint(Sketcher.Constraint("DistanceY", 1, 3, -1, 1, Q("10.841 mm")))
sketch7.setExpression("Constraints[1]", "Params.sketch7_diameter")
pad4 = doc.addObject("PartDesign::Pad", "Pad003")
body3.addObject(pad4)
pad4.Profile = sketch7
pad4.setExpression("Length", "Params.pad4_length")
doc.recompute()

body4 = doc.addObject("PartDesign::Body", "Body003")
body4.BaseFeature = body3
boolean = doc.addObject("PartDesign::Boolean", "Boolean")
body.addObject(boolean)
boolean.Type = "Cut"
boolean.addObjects([body4])
doc.recompute()

# Sketch on XZ plane
sketch8 = doc.addObject("Sketcher::SketchObject", "Sketch007")
body.addObject(sketch8)
sketch8.AttachmentSupport = (doc.XZ_Plane, [""])
sketch8.MapMode = "FlatFace"
sketch8.AttachmentOffset = App.Placement(App.Vector(0, 0, -5), App.Rotation())
sketch8.addGeometry(Part.LineSegment(App.Vector(7.5, -8, 0), App.Vector(1, -8, 0)), False)
sketch8.addGeometry(Part.LineSegment(App.Vector(1, -8, 0), App.Vector(1, -2, 0)), False)
sketch8.addGeometry(Part.ArcOfCircle(Part.Circle(App.Vector(2, -2, 0), App.Vector(0, 0, 1), 1), math.radians(90), math.radians(180)), False)
sketch8.addGeometry(Part.LineSegment(App.Vector(2, -1, 0), App.Vector(7.5, -1, 0)), False)
sketch8.addGeometry(Part.LineSegment(App.Vector(7.5, -1, 0), App.Vector(7.5, -8, 0)), False)
sketch8.addGeometry(Part.Circle(App.Vector(4.2, -4.5, 0), App.Vector(0, 0, 1), 1.4), False)
sketch8.addConstraint(Sketcher.Constraint("Coincident", 0, 2, 1, 1))
sketch8.addConstraint(Sketcher.Constraint("Tangent", 1, 2, 2, 2))
sketch8.addConstraint(Sketcher.Constraint("Tangent", 2, 1, 3, 1))
sketch8.addConstraint(Sketcher.Constraint("Coincident", 3, 2, 4, 1))
sketch8.addConstraint(Sketcher.Constraint("Coincident", 4, 2, 0, 1))
sketch8.addConstraint(Sketcher.Constraint("Horizontal", 0))
sketch8.addConstraint(Sketcher.Constraint("Vertical", 1))
sketch8.addConstraint(Sketcher.Constraint("Horizontal", 3))
sketch8.addConstraint(Sketcher.Constraint("Vertical", 4))
sketch8.addConstraint(Sketcher.Constraint("Radius", 2, Q("1 mm")))
sketch8.addConstraint(Sketcher.Constraint("Diameter", 5, Q("2.8 mm")))
sketch8.addConstraint(Sketcher.Constraint("DistanceY", 1, 1, 1, 2, Q("6 mm")))
sketch8.addConstraint(Sketcher.Constraint("DistanceX", 0, 2, 0, 1, Q("6.5 mm")))
sketch8.addConstraint(Sketcher.Constraint("DistanceX", -1, 1, 2, 3, Q("2 mm")))
sketch8.addConstraint(Sketcher.Constraint("DistanceY", 2, 3, -1, 1, Q("2 mm")))
sketch8.addConstraint(Sketcher.Constraint("DistanceY", 5, 3, -1, 1, Q("4.5 mm")))
sketch8.addConstraint(Sketcher.Constraint("DistanceX", -1, 1, 5, 3, Q("4.25 mm")))
sketch8.setExpression("Constraints[9]", "Params.sketch8_radius")
sketch8.setExpression("Constraints[10]", "Params.sketch8_diameter")
sketch8.setExpression("Constraints[11]", "Params.sketch8_height")
sketch8.setExpression("Constraints[12]", "Params.sketch8_width")
pad5 = doc.addObject("PartDesign::Pad", "Pad004")
body.addObject(pad5)
pad5.Profile = sketch8
pad5.setExpression("Length", "Params.pad5_length")
doc.recompute()

fillet = doc.addObject("PartDesign::Fillet", "Fillet")
body.addObject(fillet)
fillet.Base = (pad5, edges_at(pad5, [(7.5, 3, -1), (7.5, 3, -8), (1, 3, -8)]))
fillet.setExpression("Radius", "Params.fillet_radius")
doc.recompute()

boolean2 = doc.addObject("PartDesign::Boolean", "Boolean001")
body2.addObject(boolean2)
boolean2.Type = "Cut"
boolean2.addObjects([body3])

# Sketch on YZ plane
sketch9 = doc.addObject("Sketcher::SketchObject", "Sketch008")
body2.addObject(sketch9)
sketch9.AttachmentSupport = (doc.getObject("YZ_Plane001"), [""])
sketch9.MapMode = "FlatFace"
sketch9.AttachmentOffset = App.Placement(App.Vector(0, 0, 1), App.Rotation())
sketch9.addGeometry(Part.LineSegment(App.Vector(13.7, -17, 0), App.Vector(15.5, -17, 0)), False)
sketch9.addGeometry(Part.ArcOfCircle(Part.Circle(App.Vector(15.5, -15.2, 0), App.Vector(0, 0, 1), 1.9), math.radians(-180), math.radians(-90)), False)
sketch9.addGeometry(Part.LineSegment(App.Vector(13.7, -15.2, 0), App.Vector(13.7, -17, 0)), False)
sketch9.addGeometry(Part.ArcOfCircle(Part.Circle(App.Vector(15.5, -15.2, 0), App.Vector(0, 0, 1), 1.9), math.radians(90), math.radians(180)), False)
sketch9.addGeometry(Part.LineSegment(App.Vector(15.5, -13.3, 0), App.Vector(13.7, -13.3, 0)), False)
sketch9.addGeometry(Part.LineSegment(App.Vector(13.7, -13.3, 0), App.Vector(13.7, -15.2, 0)), False)
sketch9.addConstraint(Sketcher.Constraint("Tangent", 0, 2, 1, 2))
sketch9.addConstraint(Sketcher.Constraint("Tangent", 1, 1, 2, 1))
sketch9.addConstraint(Sketcher.Constraint("Coincident", 2, 2, 0, 1))
sketch9.addConstraint(Sketcher.Constraint("Tangent", 3, 1, 4, 1))
sketch9.addConstraint(Sketcher.Constraint("Coincident", 4, 2, 5, 1))
sketch9.addConstraint(Sketcher.Constraint("Tangent", 5, 2, 3, 2))
sketch9.addConstraint(Sketcher.Constraint("Horizontal", 0))
sketch9.addConstraint(Sketcher.Constraint("Vertical", 2))
sketch9.addConstraint(Sketcher.Constraint("Horizontal", 4))
sketch9.addConstraint(Sketcher.Constraint("Vertical", 5))
sketch9.addConstraint(Sketcher.Constraint("Coincident", 3, 3, 1, 3))
sketch9.addConstraint(Sketcher.Constraint("Equal", 1, 3))
sketch9.addConstraint(Sketcher.Constraint("Radius", 1, Q("1.85 mm")))
sketch9.addConstraint(Sketcher.Constraint("DistanceX", -1, 1, 1, 3, Q("15.5 mm")))
sketch9.addConstraint(Sketcher.Constraint("DistanceY", 1, 3, -1, 1, Q("15.159 mm")))
sketch9.setExpression("Constraints[12]", "Params.sketch9_radius")
pocket4 = doc.addObject("PartDesign::Pocket", "Pocket003")
body2.addObject(pocket4)
pocket4.Profile = sketch9
pocket4.setExpression("Length", "Params.pocket4_length")
pocket4.Reversed = True

# Sketch on XZ plane
sketch10 = doc.addObject("Sketcher::SketchObject", "Sketch009")
body2.addObject(sketch10)
sketch10.AttachmentSupport = (doc.getObject("XZ_Plane001"), [""])
sketch10.MapMode = "FlatFace"
sketch10.AttachmentOffset = App.Placement(App.Vector(0, 0, -5), App.Rotation())
sketch10.addGeometry(Part.LineSegment(App.Vector(7.5, -8, 0), App.Vector(1, -8, 0)), False)
sketch10.addGeometry(Part.LineSegment(App.Vector(1, -8, 0), App.Vector(1, -2, 0)), False)
sketch10.addGeometry(Part.ArcOfCircle(Part.Circle(App.Vector(2, -2, 0), App.Vector(0, 0, 1), 1), math.radians(90), math.radians(180)), False)
sketch10.addGeometry(Part.LineSegment(App.Vector(2, -1, 0), App.Vector(7.5, -1, 0)), False)
sketch10.addGeometry(Part.LineSegment(App.Vector(7.5, -1, 0), App.Vector(7.5, -8, 0)), False)
sketch10.addGeometry(Part.Circle(App.Vector(4.2, -4.5, 0), App.Vector(0, 0, 1), 1.6), False)
sketch10.addConstraint(Sketcher.Constraint("Coincident", 0, 2, 1, 1))
sketch10.addConstraint(Sketcher.Constraint("Tangent", 1, 2, 2, 2))
sketch10.addConstraint(Sketcher.Constraint("Tangent", 2, 1, 3, 1))
sketch10.addConstraint(Sketcher.Constraint("Coincident", 3, 2, 4, 1))
sketch10.addConstraint(Sketcher.Constraint("Coincident", 4, 2, 0, 1))
sketch10.addConstraint(Sketcher.Constraint("Horizontal", 0))
sketch10.addConstraint(Sketcher.Constraint("Vertical", 1))
sketch10.addConstraint(Sketcher.Constraint("Horizontal", 3))
sketch10.addConstraint(Sketcher.Constraint("Vertical", 4))
sketch10.addConstraint(Sketcher.Constraint("Radius", 2, Q("1 mm")))
sketch10.addConstraint(Sketcher.Constraint("Diameter", 5, Q("3.3 mm")))
sketch10.addConstraint(Sketcher.Constraint("DistanceY", 1, 1, 1, 2, Q("6 mm")))
sketch10.addConstraint(Sketcher.Constraint("DistanceX", 0, 2, 0, 1, Q("6.5 mm")))
sketch10.addConstraint(Sketcher.Constraint("DistanceX", -1, 1, 2, 3, Q("2 mm")))
sketch10.addConstraint(Sketcher.Constraint("DistanceY", 2, 3, -1, 1, Q("2 mm")))
sketch10.addConstraint(Sketcher.Constraint("DistanceY", 5, 3, -1, 1, Q("4.5 mm")))
sketch10.addConstraint(Sketcher.Constraint("DistanceX", -1, 1, 5, 3, Q("4.25 mm")))
sketch10.setExpression("Constraints[9]", "Params.sketch10_radius")
sketch10.setExpression("Constraints[10]", "Params.sketch10_diameter")
sketch10.setExpression("Constraints[11]", "Params.sketch10_height")
sketch10.setExpression("Constraints[12]", "Params.sketch10_width")
pad6 = doc.addObject("PartDesign::Pad", "Pad005")
body2.addObject(pad6)
pad6.Profile = sketch10
pad6.Type = "UpToFirst"
pad6.Reversed = True

# Sketch on XZ plane
sketch11 = doc.addObject("Sketcher::SketchObject", "Sketch010")
body2.addObject(sketch11)
sketch11.AttachmentSupport = (doc.getObject("XZ_Plane001"), [""])
sketch11.MapMode = "FlatFace"
sketch11.AttachmentOffset = App.Placement(App.Vector(0, 0, -5), App.Rotation())
sketch11.addGeometry(Part.Circle(App.Vector(4.2, -4.5, 0), App.Vector(0, 0, 1), 1.6), False)
sketch11.addConstraint(Sketcher.Constraint("Diameter", 0, Q("3.3 mm")))
sketch11.addConstraint(Sketcher.Constraint("DistanceY", 0, 3, -1, 1, Q("4.5 mm")))
sketch11.addConstraint(Sketcher.Constraint("DistanceX", -1, 1, 0, 3, Q("4.25 mm")))
sketch11.setExpression("Constraints[0]", "Params.sketch11_diameter")
pocket5 = doc.addObject("PartDesign::Pocket", "Pocket004")
body2.addObject(pocket5)
pocket5.Profile = sketch11
pocket5.Type = "ThroughAll"
doc.recompute()

fillet2 = doc.addObject("PartDesign::Fillet", "Fillet001")
body2.addObject(fillet2)
fillet2.Base = (pocket5, edges_at(pocket5, [(7.5, 16.524, -1.5), (7.5, 11.774, -8), (1.5, 16.524, -8)]))
fillet2.setExpression("Radius", "Params.fillet2_radius")
doc.recompute()

fillet3 = doc.addObject("PartDesign::Fillet", "Fillet002")
body2.addObject(fillet3)
fillet3.Base = (fillet2, edges_at(fillet2, [(1, 9.75, -8), (7.5, 9.75, -1)]))
fillet3.setExpression("Radius", "Params.fillet3_radius")

doc.recompute()
